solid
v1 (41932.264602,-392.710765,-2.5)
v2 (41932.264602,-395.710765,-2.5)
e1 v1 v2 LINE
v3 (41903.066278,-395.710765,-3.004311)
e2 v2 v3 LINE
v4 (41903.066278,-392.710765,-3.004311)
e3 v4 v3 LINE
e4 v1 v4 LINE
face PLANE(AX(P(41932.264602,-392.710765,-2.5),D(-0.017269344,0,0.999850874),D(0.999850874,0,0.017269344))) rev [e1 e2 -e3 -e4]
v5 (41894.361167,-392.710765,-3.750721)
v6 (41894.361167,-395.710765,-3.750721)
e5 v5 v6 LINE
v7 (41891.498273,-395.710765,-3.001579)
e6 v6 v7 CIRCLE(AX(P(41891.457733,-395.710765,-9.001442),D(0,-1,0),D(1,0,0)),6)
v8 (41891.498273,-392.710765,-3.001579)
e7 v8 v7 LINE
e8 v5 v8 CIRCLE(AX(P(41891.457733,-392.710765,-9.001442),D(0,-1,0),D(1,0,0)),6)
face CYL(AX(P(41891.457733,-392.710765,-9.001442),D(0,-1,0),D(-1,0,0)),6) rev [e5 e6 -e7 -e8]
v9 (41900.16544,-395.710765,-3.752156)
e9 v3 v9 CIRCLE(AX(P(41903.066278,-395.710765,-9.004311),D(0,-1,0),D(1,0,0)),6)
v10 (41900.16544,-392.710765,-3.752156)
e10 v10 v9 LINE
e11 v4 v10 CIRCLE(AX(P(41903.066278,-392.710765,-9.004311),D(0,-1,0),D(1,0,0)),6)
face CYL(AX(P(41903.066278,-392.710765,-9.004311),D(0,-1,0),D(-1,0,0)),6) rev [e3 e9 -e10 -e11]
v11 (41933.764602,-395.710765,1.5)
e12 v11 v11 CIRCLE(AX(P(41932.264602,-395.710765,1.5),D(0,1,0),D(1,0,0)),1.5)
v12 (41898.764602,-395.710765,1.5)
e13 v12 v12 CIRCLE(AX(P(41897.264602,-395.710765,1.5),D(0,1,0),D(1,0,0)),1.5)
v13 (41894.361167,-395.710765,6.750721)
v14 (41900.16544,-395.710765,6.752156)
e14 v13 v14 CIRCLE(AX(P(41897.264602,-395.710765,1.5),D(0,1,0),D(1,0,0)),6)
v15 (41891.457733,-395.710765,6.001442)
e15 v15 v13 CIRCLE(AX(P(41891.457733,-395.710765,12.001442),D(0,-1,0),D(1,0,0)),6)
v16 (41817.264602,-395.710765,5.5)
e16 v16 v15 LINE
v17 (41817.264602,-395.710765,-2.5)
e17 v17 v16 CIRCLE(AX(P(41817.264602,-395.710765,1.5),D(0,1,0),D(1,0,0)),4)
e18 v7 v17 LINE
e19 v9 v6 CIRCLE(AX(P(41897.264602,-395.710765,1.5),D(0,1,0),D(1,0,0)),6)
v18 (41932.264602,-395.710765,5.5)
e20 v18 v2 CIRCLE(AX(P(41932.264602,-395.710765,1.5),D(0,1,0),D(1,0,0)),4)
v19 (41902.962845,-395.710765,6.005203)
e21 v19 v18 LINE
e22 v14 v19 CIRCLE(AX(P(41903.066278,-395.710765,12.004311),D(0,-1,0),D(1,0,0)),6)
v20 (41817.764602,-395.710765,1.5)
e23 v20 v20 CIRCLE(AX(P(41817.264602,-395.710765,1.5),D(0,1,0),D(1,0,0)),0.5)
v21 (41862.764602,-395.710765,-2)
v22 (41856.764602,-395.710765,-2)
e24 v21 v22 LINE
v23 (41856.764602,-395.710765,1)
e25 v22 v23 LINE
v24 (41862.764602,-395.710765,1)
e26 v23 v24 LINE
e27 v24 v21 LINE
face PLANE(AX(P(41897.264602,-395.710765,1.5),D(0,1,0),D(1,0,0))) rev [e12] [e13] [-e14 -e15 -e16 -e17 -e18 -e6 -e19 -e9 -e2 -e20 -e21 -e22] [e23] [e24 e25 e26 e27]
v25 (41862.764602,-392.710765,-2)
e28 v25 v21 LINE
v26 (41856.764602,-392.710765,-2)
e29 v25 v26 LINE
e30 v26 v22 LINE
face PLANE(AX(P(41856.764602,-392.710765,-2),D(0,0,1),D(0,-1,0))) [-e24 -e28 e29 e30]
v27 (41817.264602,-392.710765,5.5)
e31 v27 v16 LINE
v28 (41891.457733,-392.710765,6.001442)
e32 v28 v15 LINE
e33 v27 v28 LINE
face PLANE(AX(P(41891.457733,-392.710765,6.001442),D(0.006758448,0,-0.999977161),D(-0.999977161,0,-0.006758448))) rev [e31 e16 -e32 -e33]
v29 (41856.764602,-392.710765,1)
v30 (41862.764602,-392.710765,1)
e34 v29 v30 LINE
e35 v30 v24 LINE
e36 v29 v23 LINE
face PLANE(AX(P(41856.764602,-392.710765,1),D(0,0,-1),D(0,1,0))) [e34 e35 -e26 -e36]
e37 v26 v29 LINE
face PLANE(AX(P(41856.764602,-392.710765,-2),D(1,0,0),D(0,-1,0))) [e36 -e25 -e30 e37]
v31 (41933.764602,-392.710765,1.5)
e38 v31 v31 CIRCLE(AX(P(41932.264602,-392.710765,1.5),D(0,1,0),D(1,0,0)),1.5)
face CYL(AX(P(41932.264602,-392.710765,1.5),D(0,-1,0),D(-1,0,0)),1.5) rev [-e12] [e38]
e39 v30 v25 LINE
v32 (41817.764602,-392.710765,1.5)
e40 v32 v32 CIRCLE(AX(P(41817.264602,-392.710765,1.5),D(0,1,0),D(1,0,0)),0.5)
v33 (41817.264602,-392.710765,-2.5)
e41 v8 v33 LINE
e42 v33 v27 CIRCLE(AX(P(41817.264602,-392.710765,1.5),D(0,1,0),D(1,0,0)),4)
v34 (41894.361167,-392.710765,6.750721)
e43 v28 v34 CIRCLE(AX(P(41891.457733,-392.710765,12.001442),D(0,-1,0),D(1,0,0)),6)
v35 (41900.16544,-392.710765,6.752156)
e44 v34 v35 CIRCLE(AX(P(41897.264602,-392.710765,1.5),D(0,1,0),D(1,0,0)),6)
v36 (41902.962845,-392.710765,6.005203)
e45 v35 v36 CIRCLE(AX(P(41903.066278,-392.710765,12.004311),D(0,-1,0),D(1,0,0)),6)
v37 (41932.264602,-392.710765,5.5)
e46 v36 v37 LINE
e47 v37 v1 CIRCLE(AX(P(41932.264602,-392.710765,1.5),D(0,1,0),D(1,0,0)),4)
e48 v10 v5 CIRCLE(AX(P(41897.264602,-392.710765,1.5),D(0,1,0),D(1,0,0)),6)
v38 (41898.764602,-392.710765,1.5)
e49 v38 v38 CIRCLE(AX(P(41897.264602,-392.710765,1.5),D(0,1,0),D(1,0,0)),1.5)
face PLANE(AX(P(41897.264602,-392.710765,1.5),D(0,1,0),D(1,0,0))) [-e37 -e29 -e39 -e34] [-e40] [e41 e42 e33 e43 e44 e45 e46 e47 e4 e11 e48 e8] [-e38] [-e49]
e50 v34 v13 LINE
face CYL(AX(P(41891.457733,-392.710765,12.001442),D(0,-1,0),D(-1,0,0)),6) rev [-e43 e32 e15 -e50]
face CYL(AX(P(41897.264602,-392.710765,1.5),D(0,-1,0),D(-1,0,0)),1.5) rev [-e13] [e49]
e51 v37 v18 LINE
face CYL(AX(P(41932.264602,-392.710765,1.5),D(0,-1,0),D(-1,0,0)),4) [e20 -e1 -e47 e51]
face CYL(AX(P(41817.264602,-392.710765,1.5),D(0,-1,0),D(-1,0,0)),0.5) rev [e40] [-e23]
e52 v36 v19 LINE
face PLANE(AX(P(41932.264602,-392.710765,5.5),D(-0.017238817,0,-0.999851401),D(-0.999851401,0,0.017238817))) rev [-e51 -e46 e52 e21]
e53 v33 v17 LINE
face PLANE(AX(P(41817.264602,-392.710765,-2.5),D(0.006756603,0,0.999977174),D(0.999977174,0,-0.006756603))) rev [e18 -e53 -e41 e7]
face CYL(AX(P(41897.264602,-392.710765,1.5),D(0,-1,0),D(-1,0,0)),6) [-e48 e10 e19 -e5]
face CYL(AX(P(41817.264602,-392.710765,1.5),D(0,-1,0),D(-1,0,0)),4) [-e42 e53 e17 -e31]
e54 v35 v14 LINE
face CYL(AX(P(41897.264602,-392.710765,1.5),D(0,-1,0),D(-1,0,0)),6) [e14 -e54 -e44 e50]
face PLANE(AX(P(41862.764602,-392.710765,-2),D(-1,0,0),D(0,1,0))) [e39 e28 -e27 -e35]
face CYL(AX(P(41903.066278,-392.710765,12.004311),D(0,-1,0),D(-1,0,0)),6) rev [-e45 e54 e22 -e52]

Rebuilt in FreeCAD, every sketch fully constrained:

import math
import FreeCAD as App
import Part
import Sketcher
from FreeCAD import Vector
Q = App.Units.Quantity

doc = App.newDocument("Part")
params = doc.addObject("Spreadsheet::Sheet", "Params")
for row, (alias, value) in enumerate([
    ("sketch1_diameter", "1 mm"),
    ("sketch1_diameter2", "3 mm"),
    ("sketch1_radius", "6 mm"),
    ("sketch1_radius2", "4 mm"),
    ("sketch1_width", "6 mm"),
    ("pad1_length", "3 mm"),
], start=1):
    params.set(f"A{row}", alias)
    params.set(f"B{row}", "=" + value)
    params.setAlias(f"B{row}", alias)

body = doc.addObject("PartDesign::Body", "Body")

# Sketch on XY plane
sketch1 = body.newObject("Sketcher::SketchObject", "Sketch")
sketch1.AttachmentSupport = (doc.getObject("XY_Plane"), [""])
sketch1.MapMode = "FlatFace"
sketch1.addGeometry([
    Part.LineSegment(Vector(41932.3, -390.2, 0), Vector(41903.1, -389.7, 0)),  # 0
    Part.ArcOfCircle(Part.Circle(Vector(41903.1, -383.7, 0), Vector(0, 0, 1), 6), math.radians(-119), math.radians(-90)),  # 1
    Part.ArcOfCircle(Part.Circle(Vector(41897.3, -394.2, 0), Vector(0, 0, 1), 6), math.radians(61), math.radians(119)),  # 2
    Part.ArcOfCircle(Part.Circle(Vector(41891.5, -383.7, 0), Vector(0, 0, 1), 6), math.radians(-90), math.radians(-61)),  # 3
    Part.LineSegment(Vector(41891.5, -389.7, 0), Vector(41817.3, -390.2, 0)),  # 4
    Part.ArcOfCircle(Part.Circle(Vector(41817.3, -394.2, 0), Vector(0, 0, 1), 4), math.radians(90), math.radians(270)),  # 5
    Part.LineSegment(Vector(41817.3, -398.2, 0), Vector(41891.5, -398.7, 0)),  # 6
    Part.ArcOfCircle(Part.Circle(Vector(41891.5, -404.7, 0), Vector(0, 0, 1), 6), math.radians(61), math.radians(90)),  # 7
    Part.ArcOfCircle(Part.Circle(Vector(41897.3, -394.2, 0), Vector(0, 0, 1), 6), math.radians(-119), math.radians(-61)),  # 8
    Part.ArcOfCircle(Part.Circle(Vector(41903.1, -404.7, 0), Vector(0, 0, 1), 6), math.radians(91), math.radians(119)),  # 9
    Part.LineSegment(Vector(41903, -398.7, 0), Vector(41932.3, -398.2, 0)),  # 10
    Part.ArcOfCircle(Part.Circle(Vector(41932.3, -394.2, 0), Vector(0, 0, 1), 4), math.radians(-90), math.radians(90)),  # 11
    Part.Circle(Vector(41817.3, -394.2, 0), Vector(0, 0, 1), 0.5),  # 12
    Part.Circle(Vector(41897.3, -394.2, 0), Vector(0, 0, 1), 1.5),  # 13
    Part.Circle(Vector(41932.3, -394.2, 0), Vector(0, 0, 1), 1.5),  # 14
    Part.LineSegment(Vector(41862.8, -393.7, 0), Vector(41856.8, -393.7, 0)),  # 15
    Part.LineSegment(Vector(41856.8, -393.7, 0), Vector(41856.8, -390.7, 0)),  # 16
    Part.LineSegment(Vector(41856.8, -390.7, 0), Vector(41862.8, -390.7, 0)),  # 17
    Part.LineSegment(Vector(41862.8, -390.7, 0), Vector(41862.8, -393.7, 0)),  # 18
], False)
sketch1.addConstraint([
    Sketcher.Constraint("Coincident", 0, 2, 1, 2),
    Sketcher.Constraint("Tangent", 1, 1, 2, 1),
    Sketcher.Constraint("Tangent", 2, 2, 3, 2),
    Sketcher.Constraint("Tangent", 3, 1, 4, 1),
    Sketcher.Constraint("Coincident", 4, 2, 5, 1),
    Sketcher.Constraint("Coincident", 5, 2, 6, 1),
    Sketcher.Constraint("Coincident", 6, 2, 7, 2),
    Sketcher.Constraint("Tangent", 7, 1, 8, 1),
    Sketcher.Constraint("Tangent", 8, 2, 9, 2),
    Sketcher.Constraint("Tangent", 9, 1, 10, 1),
    Sketcher.Constraint("Coincident", 10, 2, 11, 1),
    Sketcher.Constraint("Coincident", 11, 2, 0, 1),
    Sketcher.Constraint("Coincident", 15, 2, 16, 1),
    Sketcher.Constraint("Coincident", 16, 2, 17, 1),
    Sketcher.Constraint("Coincident", 17, 2, 18, 1),
    Sketcher.Constraint("Coincident", 18, 2, 15, 1),
    Sketcher.Constraint("Horizontal", 15),
    Sketcher.Constraint("Vertical", 16),
    Sketcher.Constraint("Horizontal", 17),
    Sketcher.Constraint("Vertical", 18),
    Sketcher.Constraint("Coincident", 8, 3, 2, 3),
    Sketcher.Constraint("Coincident", 12, 3, 5, 3),
    Sketcher.Constraint("Coincident", 13, 3, 2, 3),
    Sketcher.Constraint("Coincident", 14, 3, 11, 3),
    Sketcher.Constraint("Equal", 1, 2),
    Sketcher.Constraint("Equal", 2, 3),
    Sketcher.Constraint("Equal", 3, 7),
    Sketcher.Constraint("Equal", 7, 8),
    Sketcher.Constraint("Equal", 8, 9),
    Sketcher.Constraint("Equal", 5, 11),
    Sketcher.Constraint("Equal", 13, 14),
    Sketcher.Constraint("Horizontal", 2, 3, 5, 3),
    Sketcher.Constraint("Horizontal", 8, 3, 11, 3),
    Sketcher.Constraint("Vertical", 3, 3, 7, 3),
    Sketcher.Constraint("Vertical", 1, 3, 9, 3),
    Sketcher.Constraint("Vertical", 9, 3, 0, 2),
    Sketcher.Constraint("Vertical", 12, 3, 4, 2),
    Sketcher.Constraint("Vertical", 4, 2, 5, 2),
    Sketcher.Constraint("Vertical", 7, 3, 6, 2),
    Sketcher.Constraint("Vertical", 14, 3, 10, 2),
    Sketcher.Constraint("Vertical", 10, 2, 11, 2),
    Sketcher.Constraint("Diameter", 12, Q("1 mm")),
    Sketcher.Constraint("Diameter", 13, Q("3 mm")),
    Sketcher.Constraint("Radius", 1, Q("6 mm")),
    Sketcher.Constraint("Radius", 5, Q("4 mm")),
    Sketcher.Constraint("DistanceX", 15, 2, 15, 1, Q("6 mm")),
    Sketcher.Constraint("DistanceY", 16, 1, 16, 2, Q("3 mm")),
    Sketcher.Constraint("DistanceX", 5, 3, 2, 3, Q("80 mm")),
    Sketcher.Constraint("DistanceX", 2, 3, 11, 3, Q("35 mm")),
    Sketcher.Constraint("DistanceX", -1, 1, 2, 3, Q("41897.264602 mm")),
    Sketcher.Constraint("DistanceX", -1, 1, 15, 2, Q("41856.764602 mm")),
    Sketcher.Constraint("Distance", 0, Q("29.202679 mm")),
    Sketcher.Constraint("DistanceY", 1, 1, -1, 1, Q("388.95861 mm")),
    Sketcher.Constraint("DistanceY", 3, 3, 1, 3, Q("0.002869 mm")),
    Sketcher.Constraint("DistanceY", 15, 2, 3, 1, Q("4.001579 mm")),
])
sketch1.setExpression("Constraints[41]", "Params.sketch1_diameter")
sketch1.setExpression("Constraints[42]", "Params.sketch1_diameter2")
sketch1.setExpression("Constraints[43]", "Params.sketch1_radius")
sketch1.setExpression("Constraints[44]", "Params.sketch1_radius2")
sketch1.setExpression("Constraints[45]", "Params.sketch1_width")
pad1 = body.newObject("PartDesign::Pad", "Pad")
pad1.Profile = sketch1
pad1.setExpression("Length", "Params.pad1_length")
body2 = doc.addObject("PartDesign::Body", "Body001")
doc.recompute()

body.Placement = App.Placement(Vector(0, -395.710765, -392.710765), App.Rotation(Vector(-1, 0, 0), 90))
boolean = body2.newObject("PartDesign::Boolean", "Boolean")
boolean.Type = "Fuse"
boolean.addObjects([body])

doc.recompute()
